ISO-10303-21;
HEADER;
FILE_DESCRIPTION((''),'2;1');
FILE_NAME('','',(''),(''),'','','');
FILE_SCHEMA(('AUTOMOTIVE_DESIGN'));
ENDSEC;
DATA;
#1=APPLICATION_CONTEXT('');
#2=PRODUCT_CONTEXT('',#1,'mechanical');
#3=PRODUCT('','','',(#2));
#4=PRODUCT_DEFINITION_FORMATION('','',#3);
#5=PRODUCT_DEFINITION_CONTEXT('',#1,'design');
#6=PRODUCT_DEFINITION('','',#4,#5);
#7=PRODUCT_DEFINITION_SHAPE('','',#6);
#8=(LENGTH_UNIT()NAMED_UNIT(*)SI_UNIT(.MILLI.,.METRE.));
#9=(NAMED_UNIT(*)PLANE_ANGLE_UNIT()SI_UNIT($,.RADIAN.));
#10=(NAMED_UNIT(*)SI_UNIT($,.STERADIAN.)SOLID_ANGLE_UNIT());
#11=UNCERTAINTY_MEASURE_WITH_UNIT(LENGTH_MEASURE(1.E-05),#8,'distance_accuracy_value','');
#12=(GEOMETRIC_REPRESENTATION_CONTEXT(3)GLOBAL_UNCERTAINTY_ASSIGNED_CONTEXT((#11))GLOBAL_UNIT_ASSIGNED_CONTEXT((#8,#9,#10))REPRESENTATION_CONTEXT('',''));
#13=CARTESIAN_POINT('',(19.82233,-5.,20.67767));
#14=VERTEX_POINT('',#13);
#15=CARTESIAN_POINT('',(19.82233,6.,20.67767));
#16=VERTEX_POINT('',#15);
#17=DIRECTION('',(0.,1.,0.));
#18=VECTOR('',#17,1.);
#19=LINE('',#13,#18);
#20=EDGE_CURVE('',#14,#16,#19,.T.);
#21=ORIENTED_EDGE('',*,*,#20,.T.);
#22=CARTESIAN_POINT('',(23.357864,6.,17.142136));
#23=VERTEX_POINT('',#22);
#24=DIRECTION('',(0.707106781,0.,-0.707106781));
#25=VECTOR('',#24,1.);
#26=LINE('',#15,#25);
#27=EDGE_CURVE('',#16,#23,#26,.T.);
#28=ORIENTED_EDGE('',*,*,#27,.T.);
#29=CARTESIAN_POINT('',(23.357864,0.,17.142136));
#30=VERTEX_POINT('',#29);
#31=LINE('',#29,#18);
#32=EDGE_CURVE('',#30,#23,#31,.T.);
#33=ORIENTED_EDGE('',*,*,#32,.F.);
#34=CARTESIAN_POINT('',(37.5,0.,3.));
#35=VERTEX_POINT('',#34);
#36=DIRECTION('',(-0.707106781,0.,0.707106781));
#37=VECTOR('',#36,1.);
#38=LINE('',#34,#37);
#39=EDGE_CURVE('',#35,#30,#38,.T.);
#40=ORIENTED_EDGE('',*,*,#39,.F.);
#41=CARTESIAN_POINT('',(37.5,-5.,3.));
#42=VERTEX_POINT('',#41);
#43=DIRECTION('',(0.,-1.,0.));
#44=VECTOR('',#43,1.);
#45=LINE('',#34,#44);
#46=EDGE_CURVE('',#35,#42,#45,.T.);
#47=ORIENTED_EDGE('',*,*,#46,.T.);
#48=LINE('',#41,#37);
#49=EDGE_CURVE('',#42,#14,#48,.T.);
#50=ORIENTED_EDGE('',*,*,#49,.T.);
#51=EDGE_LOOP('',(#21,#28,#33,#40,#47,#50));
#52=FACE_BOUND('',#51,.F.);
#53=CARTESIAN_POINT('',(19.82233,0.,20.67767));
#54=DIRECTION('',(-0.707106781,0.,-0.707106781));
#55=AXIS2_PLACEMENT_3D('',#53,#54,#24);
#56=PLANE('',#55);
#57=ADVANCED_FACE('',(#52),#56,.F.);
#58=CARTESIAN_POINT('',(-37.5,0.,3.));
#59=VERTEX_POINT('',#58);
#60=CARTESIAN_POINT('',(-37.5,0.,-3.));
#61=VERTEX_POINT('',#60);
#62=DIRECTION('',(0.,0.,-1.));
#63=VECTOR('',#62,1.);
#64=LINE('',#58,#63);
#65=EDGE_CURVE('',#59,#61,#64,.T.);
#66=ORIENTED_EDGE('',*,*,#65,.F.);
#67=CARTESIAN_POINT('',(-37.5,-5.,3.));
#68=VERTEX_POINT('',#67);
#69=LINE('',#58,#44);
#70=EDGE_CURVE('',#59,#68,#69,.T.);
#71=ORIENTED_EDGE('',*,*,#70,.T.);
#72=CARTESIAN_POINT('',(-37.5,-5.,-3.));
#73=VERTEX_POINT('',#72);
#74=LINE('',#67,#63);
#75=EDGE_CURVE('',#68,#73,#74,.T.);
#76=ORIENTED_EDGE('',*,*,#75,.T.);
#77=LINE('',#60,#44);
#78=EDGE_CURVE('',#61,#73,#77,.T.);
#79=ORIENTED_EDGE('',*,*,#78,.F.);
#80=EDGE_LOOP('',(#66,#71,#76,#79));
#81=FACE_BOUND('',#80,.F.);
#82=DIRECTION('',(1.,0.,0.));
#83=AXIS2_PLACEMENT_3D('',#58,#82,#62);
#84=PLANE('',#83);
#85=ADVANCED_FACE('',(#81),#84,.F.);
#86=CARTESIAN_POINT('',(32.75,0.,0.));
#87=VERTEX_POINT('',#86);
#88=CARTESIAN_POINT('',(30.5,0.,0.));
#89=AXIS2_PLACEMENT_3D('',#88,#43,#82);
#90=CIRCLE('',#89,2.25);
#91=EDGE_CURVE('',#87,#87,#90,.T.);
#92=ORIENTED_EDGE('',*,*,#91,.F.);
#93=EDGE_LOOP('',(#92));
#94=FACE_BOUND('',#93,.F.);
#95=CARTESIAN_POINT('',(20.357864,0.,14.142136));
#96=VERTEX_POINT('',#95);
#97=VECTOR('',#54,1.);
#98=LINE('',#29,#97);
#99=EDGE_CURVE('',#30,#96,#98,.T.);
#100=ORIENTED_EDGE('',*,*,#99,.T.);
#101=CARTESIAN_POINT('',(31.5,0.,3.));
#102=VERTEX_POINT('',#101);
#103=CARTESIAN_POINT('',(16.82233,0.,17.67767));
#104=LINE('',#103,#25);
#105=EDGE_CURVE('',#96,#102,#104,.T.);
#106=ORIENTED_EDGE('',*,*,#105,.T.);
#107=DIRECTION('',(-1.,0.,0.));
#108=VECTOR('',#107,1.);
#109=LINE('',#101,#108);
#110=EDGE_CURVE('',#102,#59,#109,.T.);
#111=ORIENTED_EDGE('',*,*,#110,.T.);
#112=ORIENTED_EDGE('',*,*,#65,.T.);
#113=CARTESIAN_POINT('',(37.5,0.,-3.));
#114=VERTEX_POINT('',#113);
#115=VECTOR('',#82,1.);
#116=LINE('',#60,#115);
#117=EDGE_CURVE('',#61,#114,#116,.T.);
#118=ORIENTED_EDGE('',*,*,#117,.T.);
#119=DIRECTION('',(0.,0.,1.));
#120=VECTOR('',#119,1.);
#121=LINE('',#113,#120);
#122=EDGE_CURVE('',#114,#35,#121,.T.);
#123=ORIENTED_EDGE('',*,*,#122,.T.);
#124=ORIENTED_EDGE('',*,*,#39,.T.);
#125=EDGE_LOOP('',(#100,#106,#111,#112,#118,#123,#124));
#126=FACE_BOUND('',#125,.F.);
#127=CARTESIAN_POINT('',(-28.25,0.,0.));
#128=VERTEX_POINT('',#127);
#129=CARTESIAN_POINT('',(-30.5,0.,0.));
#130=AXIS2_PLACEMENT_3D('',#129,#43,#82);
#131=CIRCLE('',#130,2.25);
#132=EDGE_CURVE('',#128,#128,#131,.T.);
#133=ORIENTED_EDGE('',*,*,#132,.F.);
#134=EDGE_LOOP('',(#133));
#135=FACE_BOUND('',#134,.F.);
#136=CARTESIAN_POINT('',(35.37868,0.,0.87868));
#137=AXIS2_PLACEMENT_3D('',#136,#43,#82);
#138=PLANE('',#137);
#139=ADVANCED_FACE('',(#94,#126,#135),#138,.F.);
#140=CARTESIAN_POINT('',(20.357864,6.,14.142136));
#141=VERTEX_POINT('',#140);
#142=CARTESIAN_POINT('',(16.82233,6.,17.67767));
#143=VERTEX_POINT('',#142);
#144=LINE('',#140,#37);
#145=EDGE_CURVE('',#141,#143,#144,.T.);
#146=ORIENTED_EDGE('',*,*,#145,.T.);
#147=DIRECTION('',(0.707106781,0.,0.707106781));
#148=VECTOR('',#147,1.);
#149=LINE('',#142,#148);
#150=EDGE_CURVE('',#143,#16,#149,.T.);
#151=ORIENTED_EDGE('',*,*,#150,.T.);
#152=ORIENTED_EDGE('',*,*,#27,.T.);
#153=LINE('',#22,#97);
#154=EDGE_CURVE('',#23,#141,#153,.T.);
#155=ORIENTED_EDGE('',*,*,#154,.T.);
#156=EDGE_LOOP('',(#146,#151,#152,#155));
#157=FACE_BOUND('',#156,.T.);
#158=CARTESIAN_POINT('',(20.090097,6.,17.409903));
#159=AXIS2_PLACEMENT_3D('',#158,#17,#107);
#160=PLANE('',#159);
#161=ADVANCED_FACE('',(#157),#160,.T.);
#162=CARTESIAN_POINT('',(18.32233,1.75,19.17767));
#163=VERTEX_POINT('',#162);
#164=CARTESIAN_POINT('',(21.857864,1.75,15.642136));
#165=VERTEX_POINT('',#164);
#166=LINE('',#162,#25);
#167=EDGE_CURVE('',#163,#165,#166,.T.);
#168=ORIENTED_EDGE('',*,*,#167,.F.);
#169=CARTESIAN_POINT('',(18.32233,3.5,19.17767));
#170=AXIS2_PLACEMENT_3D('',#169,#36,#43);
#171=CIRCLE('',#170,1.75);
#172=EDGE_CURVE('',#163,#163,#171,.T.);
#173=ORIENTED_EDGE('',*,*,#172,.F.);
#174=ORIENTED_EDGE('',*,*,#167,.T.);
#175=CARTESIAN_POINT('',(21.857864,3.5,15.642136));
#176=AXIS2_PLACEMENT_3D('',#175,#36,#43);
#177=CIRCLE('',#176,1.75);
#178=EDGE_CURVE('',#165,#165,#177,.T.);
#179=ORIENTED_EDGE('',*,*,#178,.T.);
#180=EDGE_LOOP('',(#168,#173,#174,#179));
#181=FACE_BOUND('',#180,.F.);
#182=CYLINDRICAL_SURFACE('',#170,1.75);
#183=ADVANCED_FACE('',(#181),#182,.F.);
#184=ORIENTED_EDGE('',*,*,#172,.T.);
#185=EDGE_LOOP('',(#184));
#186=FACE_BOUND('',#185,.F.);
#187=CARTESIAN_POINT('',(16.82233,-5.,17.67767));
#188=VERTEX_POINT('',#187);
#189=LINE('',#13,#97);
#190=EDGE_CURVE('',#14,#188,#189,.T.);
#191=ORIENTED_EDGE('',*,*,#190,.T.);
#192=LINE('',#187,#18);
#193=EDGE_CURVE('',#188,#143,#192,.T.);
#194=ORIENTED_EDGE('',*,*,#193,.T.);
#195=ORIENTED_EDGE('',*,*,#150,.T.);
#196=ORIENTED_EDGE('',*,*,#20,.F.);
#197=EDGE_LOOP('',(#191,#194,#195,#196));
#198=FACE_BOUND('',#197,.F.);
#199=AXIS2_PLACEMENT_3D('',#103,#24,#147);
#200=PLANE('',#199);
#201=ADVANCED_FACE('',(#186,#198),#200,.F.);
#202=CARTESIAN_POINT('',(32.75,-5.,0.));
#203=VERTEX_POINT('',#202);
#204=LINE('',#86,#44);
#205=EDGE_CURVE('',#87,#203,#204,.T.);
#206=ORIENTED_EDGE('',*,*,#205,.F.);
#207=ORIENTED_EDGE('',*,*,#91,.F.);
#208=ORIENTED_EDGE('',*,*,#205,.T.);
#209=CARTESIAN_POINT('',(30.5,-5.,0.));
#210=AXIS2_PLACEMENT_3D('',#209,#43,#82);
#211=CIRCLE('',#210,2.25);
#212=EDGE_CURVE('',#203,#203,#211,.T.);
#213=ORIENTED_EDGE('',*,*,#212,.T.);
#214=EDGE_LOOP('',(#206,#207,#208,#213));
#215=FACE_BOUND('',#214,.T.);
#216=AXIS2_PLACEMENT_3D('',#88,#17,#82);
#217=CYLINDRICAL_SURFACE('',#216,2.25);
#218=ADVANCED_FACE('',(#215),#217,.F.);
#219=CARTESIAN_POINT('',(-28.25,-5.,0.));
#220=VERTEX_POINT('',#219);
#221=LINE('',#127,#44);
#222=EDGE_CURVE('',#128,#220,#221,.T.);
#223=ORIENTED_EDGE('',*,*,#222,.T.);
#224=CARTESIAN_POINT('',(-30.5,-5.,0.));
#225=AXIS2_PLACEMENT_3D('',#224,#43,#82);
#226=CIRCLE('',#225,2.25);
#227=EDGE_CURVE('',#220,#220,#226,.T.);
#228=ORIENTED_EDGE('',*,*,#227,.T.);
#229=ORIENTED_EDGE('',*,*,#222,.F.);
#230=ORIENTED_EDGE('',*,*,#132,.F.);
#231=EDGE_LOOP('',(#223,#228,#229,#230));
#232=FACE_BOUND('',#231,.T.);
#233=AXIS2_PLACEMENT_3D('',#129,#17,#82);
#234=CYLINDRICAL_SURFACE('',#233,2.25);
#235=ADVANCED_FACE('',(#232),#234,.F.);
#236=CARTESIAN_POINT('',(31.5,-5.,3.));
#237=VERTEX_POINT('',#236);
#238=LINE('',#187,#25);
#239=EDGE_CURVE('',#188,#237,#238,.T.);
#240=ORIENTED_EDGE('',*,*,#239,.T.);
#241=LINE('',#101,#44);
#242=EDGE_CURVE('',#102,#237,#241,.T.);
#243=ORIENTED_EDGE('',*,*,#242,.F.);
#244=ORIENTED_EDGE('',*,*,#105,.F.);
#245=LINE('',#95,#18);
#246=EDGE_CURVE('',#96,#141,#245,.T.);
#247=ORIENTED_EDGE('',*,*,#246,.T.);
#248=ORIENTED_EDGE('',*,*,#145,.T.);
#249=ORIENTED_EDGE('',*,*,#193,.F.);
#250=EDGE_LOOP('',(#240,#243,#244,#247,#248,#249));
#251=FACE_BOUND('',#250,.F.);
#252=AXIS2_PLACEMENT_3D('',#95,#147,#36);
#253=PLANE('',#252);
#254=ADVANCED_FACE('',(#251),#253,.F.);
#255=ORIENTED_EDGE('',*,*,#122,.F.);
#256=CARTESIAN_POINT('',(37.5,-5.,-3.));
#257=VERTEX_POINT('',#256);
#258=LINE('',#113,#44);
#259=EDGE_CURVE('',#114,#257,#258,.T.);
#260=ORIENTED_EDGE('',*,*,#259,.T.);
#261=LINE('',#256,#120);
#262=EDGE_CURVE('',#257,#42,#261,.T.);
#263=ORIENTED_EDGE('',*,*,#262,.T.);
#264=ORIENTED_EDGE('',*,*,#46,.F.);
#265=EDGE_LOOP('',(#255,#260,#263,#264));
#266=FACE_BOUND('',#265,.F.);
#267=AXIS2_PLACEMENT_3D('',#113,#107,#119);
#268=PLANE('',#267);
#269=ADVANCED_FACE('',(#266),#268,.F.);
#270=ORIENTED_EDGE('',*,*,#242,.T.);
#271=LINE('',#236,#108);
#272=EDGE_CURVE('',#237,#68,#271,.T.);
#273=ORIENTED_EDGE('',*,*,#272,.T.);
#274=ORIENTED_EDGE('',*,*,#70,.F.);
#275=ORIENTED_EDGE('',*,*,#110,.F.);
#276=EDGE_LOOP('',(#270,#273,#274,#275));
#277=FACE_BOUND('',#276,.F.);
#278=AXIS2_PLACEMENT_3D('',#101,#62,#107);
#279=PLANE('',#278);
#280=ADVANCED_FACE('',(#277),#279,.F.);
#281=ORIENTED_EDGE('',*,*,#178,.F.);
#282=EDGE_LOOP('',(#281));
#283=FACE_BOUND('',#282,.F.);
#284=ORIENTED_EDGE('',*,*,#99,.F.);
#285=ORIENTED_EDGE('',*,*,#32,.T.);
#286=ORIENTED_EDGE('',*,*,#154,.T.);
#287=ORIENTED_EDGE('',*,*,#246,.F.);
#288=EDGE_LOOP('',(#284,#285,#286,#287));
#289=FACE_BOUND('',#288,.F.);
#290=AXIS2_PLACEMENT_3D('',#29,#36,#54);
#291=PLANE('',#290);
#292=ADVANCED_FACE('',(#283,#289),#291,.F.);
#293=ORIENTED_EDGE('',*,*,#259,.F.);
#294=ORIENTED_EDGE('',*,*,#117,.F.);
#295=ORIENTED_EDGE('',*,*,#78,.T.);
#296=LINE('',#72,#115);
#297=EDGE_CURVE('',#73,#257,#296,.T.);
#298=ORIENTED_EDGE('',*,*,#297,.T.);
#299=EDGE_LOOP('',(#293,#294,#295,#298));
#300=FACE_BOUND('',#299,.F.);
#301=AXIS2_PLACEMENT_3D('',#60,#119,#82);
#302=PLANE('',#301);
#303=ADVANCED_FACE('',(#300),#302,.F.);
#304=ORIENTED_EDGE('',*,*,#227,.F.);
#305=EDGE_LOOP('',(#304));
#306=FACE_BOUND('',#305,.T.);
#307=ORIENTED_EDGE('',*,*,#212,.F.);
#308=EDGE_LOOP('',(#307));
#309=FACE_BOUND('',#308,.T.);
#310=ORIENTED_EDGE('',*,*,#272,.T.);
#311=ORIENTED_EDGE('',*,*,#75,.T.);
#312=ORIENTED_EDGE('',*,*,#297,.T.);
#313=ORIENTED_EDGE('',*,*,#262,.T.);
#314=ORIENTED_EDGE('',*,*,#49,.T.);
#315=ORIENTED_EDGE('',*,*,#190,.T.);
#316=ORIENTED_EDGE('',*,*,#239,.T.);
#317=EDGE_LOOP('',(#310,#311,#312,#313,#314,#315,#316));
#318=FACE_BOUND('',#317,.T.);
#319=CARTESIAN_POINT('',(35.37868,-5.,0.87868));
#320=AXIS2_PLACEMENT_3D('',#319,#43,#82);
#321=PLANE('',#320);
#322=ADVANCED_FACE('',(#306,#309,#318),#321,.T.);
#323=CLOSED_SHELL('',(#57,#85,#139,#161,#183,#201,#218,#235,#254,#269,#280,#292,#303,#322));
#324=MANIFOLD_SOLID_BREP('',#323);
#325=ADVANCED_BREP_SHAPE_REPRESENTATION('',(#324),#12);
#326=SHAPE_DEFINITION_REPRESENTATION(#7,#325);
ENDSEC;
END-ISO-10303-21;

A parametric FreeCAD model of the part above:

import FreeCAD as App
import Part
import Sketcher

V = App.Vector
Q = App.Units.Quantity

doc = App.newDocument("Part")
body = doc.addObject("PartDesign::Body", "Body")

sketch1 = body.newObject("Sketcher::SketchObject", "Sketch")
sketch1.AttachmentSupport = (doc.getObject("XZ_Plane"), [""])
sketch1.MapMode = "FlatFace"
sketch1.addGeometry(Part.LineSegment(V(37.5, -3, 0), V(37.5, 3, 0)), False)
sketch1.addGeometry(Part.LineSegment(V(37.5, 3, 0), V(19.8, 20.7, 0)), False)
sketch1.addGeometry(Part.LineSegment(V(19.8, 20.7, 0), V(16.8, 17.7, 0)), False)
sketch1.addGeometry(Part.LineSegment(V(16.8, 17.7, 0), V(31.5, 3, 0)), False)
sketch1.addGeometry(Part.LineSegment(V(31.5, 3, 0), V(-37.5, 3, 0)), False)
sketch1.addGeometry(Part.LineSegment(V(-37.5, 3, 0), V(-37.5, -3, 0)), False)
sketch1.addGeometry(Part.LineSegment(V(-37.5, -3, 0), V(37.5, -3, 0)), False)
sketch1.addGeometry(Part.Circle(V(-30.5, 0, 0), V(0, 0, 1), 2.2), False)
sketch1.addGeometry(Part.Circle(V(30.5, 0, 0), V(0, 0, 1), 2.2), False)
sketch1.addConstraint(Sketcher.Constraint("Coincident", 0, 2, 1, 1))
sketch1.addConstraint(Sketcher.Constraint("Coincident", 1, 2, 2, 1))
sketch1.addConstraint(Sketcher.Constraint("Coincident", 2, 2, 3, 1))
sketch1.addConstraint(Sketcher.Constraint("Coincident", 3, 2, 4, 1))
sketch1.addConstraint(Sketcher.Constraint("Coincident", 4, 2, 5, 1))
sketch1.addConstraint(Sketcher.Constraint("Coincident", 5, 2, 6, 1))
sketch1.addConstraint(Sketcher.Constraint("Coincident", 6, 2, 0, 1))
sketch1.addConstraint(Sketcher.Constraint("Vertical", 0))
sketch1.addConstraint(Sketcher.Constraint("Horizontal", 4))
sketch1.addConstraint(Sketcher.Constraint("Vertical", 5))
sketch1.addConstraint(Sketcher.Constraint("Horizontal", 6))
sketch1.addConstraint(Sketcher.Constraint("Equal", 7, 8))
sketch1.addConstraint(Sketcher.Constraint("Symmetric", 7, 3, 8, 3, -1, 1))
sketch1.addConstraint(Sketcher.Constraint("Symmetric", 0, 2, 5, 2, -1, 1))
sketch1.addConstraint(Sketcher.Constraint("PointOnObject", 7, 3, -1))
sketch1.addConstraint(Sketcher.Constraint("Perpendicular", 1, 2))
sketch1.addConstraint(Sketcher.Constraint("Perpendicular", 2, 3))
sketch1.addConstraint(Sketcher.Constraint("Horizontal", 0, 2, 3, 2))
sketch1.addConstraint(Sketcher.Constraint("Diameter", 7, Q("4.5 mm")))
sketch1.addConstraint(Sketcher.Constraint("DistanceX", 4, 2, 4, 1, Q("69 mm")))
sketch1.addConstraint(Sketcher.Constraint("DistanceX", 6, 1, 6, 2, Q("75 mm")))
sketch1.addConstraint(Sketcher.Constraint("DistanceY", 0, 1, 0, 2, Q("6 mm")))
sketch1.addConstraint(Sketcher.Constraint("Angle", 1, Q("135 deg")))
sketch1.addConstraint(Sketcher.Constraint("Distance", 1, Q("25.000001 mm")))
sketch1.addConstraint(Sketcher.Constraint("DistanceX", 7, 3, 8, 3, Q("61 mm")))
pad1 = body.newObject("PartDesign::Pad", "Pad")
pad1.Profile = sketch1
pad1.Length = 5

sketch2 = body.newObject("Sketcher::SketchObject", "Sketch001")
sketch2.AttachmentSupport = (doc.getObject("XZ_Plane"), [""])
sketch2.MapMode = "FlatFace"
sketch2.addGeometry(Part.LineSegment(V(20.4, 14.1, 0), V(16.8, 17.7, 0)), False)
sketch2.addGeometry(Part.LineSegment(V(16.8, 17.7, 0), V(19.8, 20.7, 0)), False)
sketch2.addGeometry(Part.LineSegment(V(19.8, 20.7, 0), V(23.4, 17.1, 0)), False)
sketch2.addGeometry(Part.LineSegment(V(23.4, 17.1, 0), V(20.4, 14.1, 0)), False)
sketch2.addConstraint(Sketcher.Constraint("Coincident", 0, 2, 1, 1))
sketch2.addConstraint(Sketcher.Constraint("Coincident", 1, 2, 2, 1))
sketch2.addConstraint(Sketcher.Constraint("Coincident", 2, 2, 3, 1))
sketch2.addConstraint(Sketcher.Constraint("Coincident", 3, 2, 0, 1))
sketch2.addConstraint(Sketcher.Constraint("Perpendicular", 0, 1))
sketch2.addConstraint(Sketcher.Constraint("Perpendicular", 1, 2))
sketch2.addConstraint(Sketcher.Constraint("Perpendicular", 2, 3))
sketch2.addConstraint(Sketcher.Constraint("Angle", 0, Q("135 deg")))
sketch2.addConstraint(Sketcher.Constraint("Distance", 0, Q("5 mm")))
sketch2.addConstraint(Sketcher.Constraint("DistanceX", 0, 2, 1, 2, Q("3 mm")))
sketch2.addConstraint(Sketcher.Constraint("DistanceX", -1, 1, 0, 2, Q("16.82233 mm")))
sketch2.addConstraint(Sketcher.Constraint("DistanceY", -1, 1, 0, 2, Q("17.67767 mm")))
pad2 = body.newObject("PartDesign::Pad", "Pad001")
pad2.Profile = sketch2
pad2.Length = 6
pad2.Reversed = True

sketch3 = body.newObject("Sketcher::SketchObject", "Sketch002")
sketch3.Placement = App.Placement(V(-0.42767, 0, 0.42767), App.Rotation(V(0, -1, 0), V(0.707106781, 0, 0.707106781), V(-0.707106781, 0, 0.707106781), "ZXY"))
sketch3.addGeometry(Part.Circle(V(-3.5, 26.5, 0), V(0, 0, 1), 1.8), False)
sketch3.addConstraint(Sketcher.Constraint("Diameter", 0, Q("3.5 mm")))
sketch3.addConstraint(Sketcher.Constraint("DistanceX", 0, 3, -1, 1, Q("3.5 mm")))
sketch3.addConstraint(Sketcher.Constraint("DistanceY", -1, 1, 0, 3, Q("26.516504 mm")))
pocket1 = body.newObject("PartDesign::Pocket", "Pocket")
pocket1.Profile = sketch3
pocket1.Type = "ThroughAll"

doc.recompute()
